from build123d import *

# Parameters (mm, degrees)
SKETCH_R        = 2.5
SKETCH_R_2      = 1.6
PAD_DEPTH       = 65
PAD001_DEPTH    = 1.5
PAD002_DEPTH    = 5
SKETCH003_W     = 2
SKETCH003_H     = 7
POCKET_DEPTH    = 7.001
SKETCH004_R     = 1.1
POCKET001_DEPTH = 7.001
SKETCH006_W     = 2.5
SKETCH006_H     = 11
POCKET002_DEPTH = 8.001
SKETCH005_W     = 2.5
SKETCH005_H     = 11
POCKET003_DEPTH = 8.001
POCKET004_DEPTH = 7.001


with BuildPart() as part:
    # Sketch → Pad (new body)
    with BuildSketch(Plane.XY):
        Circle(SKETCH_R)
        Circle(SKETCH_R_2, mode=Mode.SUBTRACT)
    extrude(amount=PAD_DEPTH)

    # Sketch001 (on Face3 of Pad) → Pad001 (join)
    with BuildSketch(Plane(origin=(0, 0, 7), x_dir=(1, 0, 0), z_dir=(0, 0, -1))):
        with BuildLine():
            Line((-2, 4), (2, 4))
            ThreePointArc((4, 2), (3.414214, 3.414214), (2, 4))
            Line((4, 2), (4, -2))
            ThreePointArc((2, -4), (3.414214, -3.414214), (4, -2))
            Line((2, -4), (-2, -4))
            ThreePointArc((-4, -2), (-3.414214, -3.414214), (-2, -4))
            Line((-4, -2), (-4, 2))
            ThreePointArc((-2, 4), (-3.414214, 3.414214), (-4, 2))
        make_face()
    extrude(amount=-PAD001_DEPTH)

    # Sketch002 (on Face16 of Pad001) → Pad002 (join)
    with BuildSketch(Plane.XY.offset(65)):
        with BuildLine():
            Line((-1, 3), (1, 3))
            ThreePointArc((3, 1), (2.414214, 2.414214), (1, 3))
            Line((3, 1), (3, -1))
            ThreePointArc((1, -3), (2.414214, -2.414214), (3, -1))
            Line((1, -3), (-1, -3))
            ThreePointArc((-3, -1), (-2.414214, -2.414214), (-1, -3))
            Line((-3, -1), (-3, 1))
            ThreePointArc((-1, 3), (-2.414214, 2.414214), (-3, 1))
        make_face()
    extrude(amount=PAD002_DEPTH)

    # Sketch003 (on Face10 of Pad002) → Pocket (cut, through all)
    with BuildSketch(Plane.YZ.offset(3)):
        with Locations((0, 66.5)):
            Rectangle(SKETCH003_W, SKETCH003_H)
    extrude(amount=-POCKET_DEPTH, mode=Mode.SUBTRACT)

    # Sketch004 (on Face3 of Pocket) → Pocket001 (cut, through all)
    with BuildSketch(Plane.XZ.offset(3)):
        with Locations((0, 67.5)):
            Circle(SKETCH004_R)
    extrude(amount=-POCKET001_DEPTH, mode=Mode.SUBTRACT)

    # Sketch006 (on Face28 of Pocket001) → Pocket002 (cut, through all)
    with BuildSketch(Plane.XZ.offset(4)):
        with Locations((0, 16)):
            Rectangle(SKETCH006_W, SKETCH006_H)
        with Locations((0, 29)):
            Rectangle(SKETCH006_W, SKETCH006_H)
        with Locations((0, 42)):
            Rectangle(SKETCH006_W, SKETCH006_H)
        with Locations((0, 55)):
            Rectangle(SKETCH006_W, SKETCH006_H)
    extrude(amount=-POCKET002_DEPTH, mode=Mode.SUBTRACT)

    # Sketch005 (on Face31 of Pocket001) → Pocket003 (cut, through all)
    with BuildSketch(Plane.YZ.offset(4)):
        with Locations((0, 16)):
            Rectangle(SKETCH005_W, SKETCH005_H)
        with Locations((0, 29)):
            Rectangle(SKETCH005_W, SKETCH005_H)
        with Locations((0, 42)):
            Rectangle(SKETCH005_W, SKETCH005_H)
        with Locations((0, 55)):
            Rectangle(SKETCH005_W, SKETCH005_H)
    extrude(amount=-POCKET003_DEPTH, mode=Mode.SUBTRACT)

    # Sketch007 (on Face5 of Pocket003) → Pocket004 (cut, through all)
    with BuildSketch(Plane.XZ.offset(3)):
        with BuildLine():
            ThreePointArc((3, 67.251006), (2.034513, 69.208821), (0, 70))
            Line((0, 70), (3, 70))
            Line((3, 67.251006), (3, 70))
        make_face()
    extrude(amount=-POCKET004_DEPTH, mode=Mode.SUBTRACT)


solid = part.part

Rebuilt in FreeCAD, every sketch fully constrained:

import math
import FreeCAD as App
import Part
import Sketcher
Q = App.Units.Quantity

doc = App.newDocument("Part")
body = doc.addObject("PartDesign::Body", "Body")

sketch1 = body.newObject("Sketcher::SketchObject", "Sketch")
sketch1.AttachmentSupport = (doc.getObject("XY_Plane"), [""])
sketch1.MapMode = "FlatFace"
sketch1.addGeometry([
    Part.Circle(App.Vector(0, 0, 0), App.Vector(0, 0, 1), 2.5),
    Part.Circle(App.Vector(0, 0, 0), App.Vector(0, 0, 1), 1.6),
], False)
sketch1.addConstraint([
    Sketcher.Constraint("Coincident", 0, 3, -1, 1),
    Sketcher.Constraint("Coincident", 1, 3, -1, 1),
    Sketcher.Constraint("Diameter", 0, Q("5 mm")),
    Sketcher.Constraint("Diameter", 1, Q("3.2 mm")),
])
pad1 = body.newObject("PartDesign::Pad", "Pad")
pad1.Profile = sketch1
pad1.Length = 65

sketch2 = body.newObject("Sketcher::SketchObject", "Sketch001")
sketch2.AttachmentSupport = (doc.getObject("XY_Plane"), [""])
sketch2.MapMode = "FlatFace"
sketch2.AttachmentOffset = App.Placement(App.Vector(0, 0, 7), App.Rotation())
sketch2.addGeometry([
    Part.LineSegment(App.Vector(2, -4, 0), App.Vector(-2, -4, 0)),
    Part.ArcOfCircle(Part.Circle(App.Vector(-2, -2, 0), App.Vector(0, 0, 1), 2), math.radians(180), math.radians(270)),
    Part.LineSegment(App.Vector(-4, -2, 0), App.Vector(-4, 2, 0)),
    Part.ArcOfCircle(Part.Circle(App.Vector(-2, 2, 0), App.Vector(0, 0, 1), 2), math.radians(90), math.radians(180)),
    Part.LineSegment(App.Vector(-2, 4, 0), App.Vector(2, 4, 0)),
    Part.ArcOfCircle(Part.Circle(App.Vector(2, 2, 0), App.Vector(0, 0, 1), 2), math.radians(0), math.radians(90)),
    Part.LineSegment(App.Vector(4, 2, 0), App.Vector(4, -2, 0)),
    Part.ArcOfCircle(Part.Circle(App.Vector(2, -2, 0), App.Vector(0, 0, 1), 2), math.radians(-90), math.radians(0)),
], False)
sketch2.addConstraint([
    Sketcher.Constraint("Tangent", 0, 2, 1, 2),
    Sketcher.Constraint("Tangent", 1, 1, 2, 1),
    Sketcher.Constraint("Tangent", 2, 2, 3, 2),
    Sketcher.Constraint("Tangent", 3, 1, 4, 1),
    Sketcher.Constraint("Tangent", 4, 2, 5, 2),
    Sketcher.Constraint("Tangent", 5, 1, 6, 1),
    Sketcher.Constraint("Tangent", 6, 2, 7, 2),
    Sketcher.Constraint("Tangent", 7, 1, 0, 1),
    Sketcher.Constraint("Horizontal", 0),
    Sketcher.Constraint("Vertical", 2),
    Sketcher.Constraint("Horizontal", 4),
    Sketcher.Constraint("Vertical", 6),
    Sketcher.Constraint("Equal", 1, 3),
    Sketcher.Constraint("Equal", 3, 5),
    Sketcher.Constraint("Equal", 5, 7),
    Sketcher.Constraint("Symmetric", 1, 3, 5, 3, -1, 1),
    Sketcher.Constraint("Equal", 4, 2),
    Sketcher.Constraint("Radius", 1, Q("1.999999 mm")),
    Sketcher.Constraint("DistanceX", 0, 2, 0, 1, Q("4 mm")),
])
pad2 = body.newObject("PartDesign::Pad", "Pad001")
pad2.Profile = sketch2
pad2.Length = 1.5

sketch3 = body.newObject("Sketcher::SketchObject", "Sketch002")
sketch3.AttachmentSupport = (doc.getObject("XY_Plane"), [""])
sketch3.MapMode = "FlatFace"
sketch3.AttachmentOffset = App.Placement(App.Vector(0, 0, 65), App.Rotation())
sketch3.addGeometry([
    Part.LineSegment(App.Vector(1, 3, 0), App.Vector(-1, 3, 0)),
    Part.ArcOfCircle(Part.Circle(App.Vector(-1, 1, 0), App.Vector(0, 0, 1), 2), math.radians(90), math.radians(180)),
    Part.LineSegment(App.Vector(-3, 1, 0), App.Vector(-3, -1, 0)),
    Part.ArcOfCircle(Part.Circle(App.Vector(-1, -1, 0), App.Vector(0, 0, 1), 2), math.radians(180), math.radians(270)),
    Part.LineSegment(App.Vector(-1, -3, 0), App.Vector(1, -3, 0)),
    Part.ArcOfCircle(Part.Circle(App.Vector(1, -1, 0), App.Vector(0, 0, 1), 2), math.radians(-90), math.radians(0)),
    Part.LineSegment(App.Vector(3, -1, 0), App.Vector(3, 1, 0)),
    Part.ArcOfCircle(Part.Circle(App.Vector(1, 1, 0), App.Vector(0, 0, 1), 2), math.radians(0), math.radians(90)),
], False)
sketch3.addConstraint([
    Sketcher.Constraint("Tangent", 0, 2, 1, 1),
    Sketcher.Constraint("Tangent", 1, 2, 2, 1),
    Sketcher.Constraint("Tangent", 2, 2, 3, 1),
    Sketcher.Constraint("Tangent", 3, 2, 4, 1),
    Sketcher.Constraint("Tangent", 4, 2, 5, 1),
    Sketcher.Constraint("Tangent", 5, 2, 6, 1),
    Sketcher.Constraint("Tangent", 6, 2, 7, 1),
    Sketcher.Constraint("Tangent", 7, 2, 0, 1),
    Sketcher.Constraint("Horizontal", 0),
    Sketcher.Constraint("Vertical", 2),
    Sketcher.Constraint("Horizontal", 4),
    Sketcher.Constraint("Vertical", 6),
    Sketcher.Constraint("Equal", 1, 3),
    Sketcher.Constraint("Equal", 3, 5),
    Sketcher.Constraint("Equal", 5, 7),
    Sketcher.Constraint("Symmetric", 1, 3, 5, 3, -1, 1),
    Sketcher.Constraint("Equal", 4, 2),
    Sketcher.Constraint("Radius", 1, Q("1.999999 mm")),
    Sketcher.Constraint("DistanceX", 0, 2, 0, 1, Q("2 mm")),
])
pad3 = body.newObject("PartDesign::Pad", "Pad002")
pad3.Profile = sketch3
pad3.Length = 5

sketch4 = body.newObject("Sketcher::SketchObject", "Sketch003")
sketch4.AttachmentSupport = (doc.getObject("YZ_Plane"), [""])
sketch4.MapMode = "FlatFace"
sketch4.AttachmentOffset = App.Placement(App.Vector(0, 0, 3), App.Rotation())
sketch4.addGeometry([
    Part.LineSegment(App.Vector(-1, 70, 0), App.Vector(-1, 63, 0)),
    Part.LineSegment(App.Vector(-1, 63, 0), App.Vector(1, 63, 0)),
    Part.LineSegment(App.Vector(1, 63, 0), App.Vector(1, 70, 0)),
    Part.LineSegment(App.Vector(1, 70, 0), App.Vector(-1, 70, 0)),
], False)
sketch4.addConstraint([
    Sketcher.Constraint("Coincident", 0, 2, 1, 1),
    Sketcher.Constraint("Coincident", 1, 2, 2, 1),
    Sketcher.Constraint("Coincident", 2, 2, 3, 1),
    Sketcher.Constraint("Coincident", 3, 2, 0, 1),
    Sketcher.Constraint("Vertical", 0),
    Sketcher.Constraint("Horizontal", 1),
    Sketcher.Constraint("Vertical", 2),
    Sketcher.Constraint("Horizontal", 3),
    Sketcher.Constraint("DistanceX", 1, 1, 1, 2, Q("2 mm")),
    Sketcher.Constraint("DistanceY", 0, 2, 0, 1, Q("7 mm")),
    Sketcher.Constraint("DistanceX", 0, 2, -1, 1, Q("1 mm")),
    Sketcher.Constraint("DistanceY", -1, 1, 0, 2, Q("63 mm")),
])
pocket1 = body.newObject("PartDesign::Pocket", "Pocket")
pocket1.Profile = sketch4
pocket1.Type = "ThroughAll"

sketch5 = body.newObject("Sketcher::SketchObject", "Sketch004")
sketch5.AttachmentSupport = (doc.getObject("XZ_Plane"), [""])
sketch5.MapMode = "FlatFace"
sketch5.AttachmentOffset = App.Placement(App.Vector(0, 0, 3), App.Rotation())
sketch5.addGeometry(Part.Circle(App.Vector(0, 67.5, 0), App.Vector(0, 0, 1), 1.1), False)
sketch5.addConstraint([
    Sketcher.Constraint("PointOnObject", 0, 3, -2),
    Sketcher.Constraint("Diameter", 0, Q("2.2 mm")),
    Sketcher.Constraint("DistanceY", -1, 1, 0, 3, Q("67.5 mm")),
])
pocket2 = body.newObject("PartDesign::Pocket", "Pocket001")
pocket2.Profile = sketch5
pocket2.Type = "ThroughAll"

sketch6 = body.newObject("Sketcher::SketchObject", "Sketch005")
sketch6.AttachmentSupport = (doc.getObject("XZ_Plane"), [""])
sketch6.MapMode = "FlatFace"
sketch6.AttachmentOffset = App.Placement(App.Vector(0, 0, 4), App.Rotation())
sketch6.addGeometry([
    Part.LineSegment(App.Vector(-1.2, 21.5, 0), App.Vector(-1.2, 10.5, 0)),
    Part.LineSegment(App.Vector(-1.2, 10.5, 0), App.Vector(1.2, 10.5, 0)),
    Part.LineSegment(App.Vector(1.2, 10.5, 0), App.Vector(1.2, 21.5, 0)),
    Part.LineSegment(App.Vector(1.2, 21.5, 0), App.Vector(-1.2, 21.5, 0)),
    Part.LineSegment(App.Vector(-1.2, 34.5, 0), App.Vector(-1.2, 23.5, 0)),
    Part.LineSegment(App.Vector(-1.2, 23.5, 0), App.Vector(1.2, 23.5, 0)),
    Part.LineSegment(App.Vector(1.2, 23.5, 0), App.Vector(1.2, 34.5, 0)),
    Part.LineSegment(App.Vector(1.2, 34.5, 0), App.Vector(-1.2, 34.5, 0)),
    Part.LineSegment(App.Vector(-1.2, 47.5, 0), App.Vector(-1.2, 36.5, 0)),
    Part.LineSegment(App.Vector(-1.2, 36.5, 0), App.Vector(1.2, 36.5, 0)),
    Part.LineSegment(App.Vector(1.2, 36.5, 0), App.Vector(1.2, 47.5, 0)),
    Part.LineSegment(App.Vector(1.2, 47.5, 0), App.Vector(-1.2, 47.5, 0)),
    Part.LineSegment(App.Vector(-1.2, 60.5, 0), App.Vector(-1.2, 49.5, 0)),
    Part.LineSegment(App.Vector(-1.2, 49.5, 0), App.Vector(1.2, 49.5, 0)),
    Part.LineSegment(App.Vector(1.2, 49.5, 0), App.Vector(1.2, 60.5, 0)),
    Part.LineSegment(App.Vector(1.2, 60.5, 0), App.Vector(-1.2, 60.5, 0)),
], False)
sketch6.addConstraint([
    Sketcher.Constraint("Coincident", 0, 2, 1, 1),
    Sketcher.Constraint("Coincident", 1, 2, 2, 1),
    Sketcher.Constraint("Coincident", 2, 2, 3, 1),
    Sketcher.Constraint("Coincident", 3, 2, 0, 1),
    Sketcher.Constraint("Coincident", 4, 2, 5, 1),
    Sketcher.Constraint("Coincident", 5, 2, 6, 1),
    Sketcher.Constraint("Coincident", 6, 2, 7, 1),
    Sketcher.Constraint("Coincident", 7, 2, 4, 1),
    Sketcher.Constraint("Coincident", 8, 2, 9, 1),
    Sketcher.Constraint("Coincident", 9, 2, 10, 1),
    Sketcher.Constraint("Coincident", 10, 2, 11, 1),
    Sketcher.Constraint("Coincident", 11, 2, 8, 1),
    Sketcher.Constraint("Coincident", 12, 2, 13, 1),
    Sketcher.Constraint("Coincident", 13, 2, 14, 1),
    Sketcher.Constraint("Coincident", 14, 2, 15, 1),
    Sketcher.Constraint("Coincident", 15, 2, 12, 1),
    Sketcher.Constraint("Vertical", 0),
    Sketcher.Constraint("Horizontal", 1),
    Sketcher.Constraint("Vertical", 2),
    Sketcher.Constraint("Horizontal", 3),
    Sketcher.Constraint("Vertical", 4),
    Sketcher.Constraint("Horizontal", 5),
    Sketcher.Constraint("Vertical", 6),
    Sketcher.Constraint("Horizontal", 7),
    Sketcher.Constraint("Vertical", 8),
    Sketcher.Constraint("Horizontal", 9),
    Sketcher.Constraint("Vertical", 10),
    Sketcher.Constraint("Horizontal", 11),
    Sketcher.Constraint("Vertical", 12),
    Sketcher.Constraint("Horizontal", 13),
    Sketcher.Constraint("Vertical", 14),
    Sketcher.Constraint("Horizontal", 15),
    Sketcher.Constraint("Vertical", 3, 2, 4, 2),
    Sketcher.Constraint("Vertical", 2, 2, 5, 2),
    Sketcher.Constraint("Vertical", 7, 2, 8, 2),
    Sketcher.Constraint("Vertical", 6, 2, 9, 2),
    Sketcher.Constraint("Vertical", 11, 2, 12, 2),
    Sketcher.Constraint("Vertical", 10, 2, 13, 2),
    Sketcher.Constraint("Equal", 2, 4),
    Sketcher.Constraint("Equal", 6, 8),
    Sketcher.Constraint("Equal", 10, 12),
    Sketcher.Constraint("DistanceY", 0, 2, 0, 1, Q("11 mm")),
    Sketcher.Constraint("DistanceX", 1, 1, 1, 2, Q("2.5 mm")),
    Sketcher.Constraint("DistanceY", 3, 2, 4, 2, Q("2 mm")),
    Sketcher.Constraint("DistanceY", 7, 2, 8, 2, Q("2 mm")),
    Sketcher.Constraint("DistanceY", 11, 2, 12, 2, Q("2 mm")),
    Sketcher.Constraint("DistanceY", -1, 1, 0, 2, Q("10.5 mm")),
    Sketcher.Constraint("DistanceX", 0, 2, -1, 1, Q("1.25 mm")),
])
pocket3 = body.newObject("PartDesign::Pocket", "Pocket002")
pocket3.Profile = sketch6
pocket3.Type = "ThroughAll"

sketch7 = body.newObject("Sketcher::SketchObject", "Sketch006")
sketch7.AttachmentSupport = (doc.getObject("YZ_Plane"), [""])
sketch7.MapMode = "FlatFace"
sketch7.AttachmentOffset = App.Placement(App.Vector(0, 0, 4), App.Rotation())
sketch7.addGeometry([
    Part.LineSegment(App.Vector(-1.2, 21.5, 0), App.Vector(-1.2, 10.5, 0)),
    Part.LineSegment(App.Vector(-1.2, 10.5, 0), App.Vector(1.2, 10.5, 0)),
    Part.LineSegment(App.Vector(1.2, 10.5, 0), App.Vector(1.2, 21.5, 0)),
    Part.LineSegment(App.Vector(1.2, 21.5, 0), App.Vector(-1.2, 21.5, 0)),
    Part.LineSegment(App.Vector(-1.2, 34.5, 0), App.Vector(-1.2, 23.5, 0)),
    Part.LineSegment(App.Vector(-1.2, 23.5, 0), App.Vector(1.2, 23.5, 0)),
    Part.LineSegment(App.Vector(1.2, 23.5, 0), App.Vector(1.2, 34.5, 0)),
    Part.LineSegment(App.Vector(1.2, 34.5, 0), App.Vector(-1.2, 34.5, 0)),
    Part.LineSegment(App.Vector(-1.2, 47.5, 0), App.Vector(-1.2, 36.5, 0)),
    Part.LineSegment(App.Vector(-1.2, 36.5, 0), App.Vector(1.2, 36.5, 0)),
    Part.LineSegment(App.Vector(1.2, 36.5, 0), App.Vector(1.2, 47.5, 0)),
    Part.LineSegment(App.Vector(1.2, 47.5, 0), App.Vector(-1.2, 47.5, 0)),
    Part.LineSegment(App.Vector(-1.2, 60.5, 0), App.Vector(-1.2, 49.5, 0)),
    Part.LineSegment(App.Vector(-1.2, 49.5, 0), App.Vector(1.2, 49.5, 0)),
    Part.LineSegment(App.Vector(1.2, 49.5, 0), App.Vector(1.2, 60.5, 0)),
    Part.LineSegment(App.Vector(1.2, 60.5, 0), App.Vector(-1.2, 60.5, 0)),
], False)
sketch7.addConstraint([
    Sketcher.Constraint("Coincident", 0, 2, 1, 1),
    Sketcher.Constraint("Coincident", 1, 2, 2, 1),
    Sketcher.Constraint("Coincident", 2, 2, 3, 1),
    Sketcher.Constraint("Coincident", 3, 2, 0, 1),
    Sketcher.Constraint("Coincident", 4, 2, 5, 1),
    Sketcher.Constraint("Coincident", 5, 2, 6, 1),
    Sketcher.Constraint("Coincident", 6, 2, 7, 1),
    Sketcher.Constraint("Coincident", 7, 2, 4, 1),
    Sketcher.Constraint("Coincident", 8, 2, 9, 1),
    Sketcher.Constraint("Coincident", 9, 2, 10, 1),
    Sketcher.Constraint("Coincident", 10, 2, 11, 1),
    Sketcher.Constraint("Coincident", 11, 2, 8, 1),
    Sketcher.Constraint("Coincident", 12, 2, 13, 1),
    Sketcher.Constraint("Coincident", 13, 2, 14, 1),
    Sketcher.Constraint("Coincident", 14, 2, 15, 1),
    Sketcher.Constraint("Coincident", 15, 2, 12, 1),
    Sketcher.Constraint("Vertical", 0),
    Sketcher.Constraint("Horizontal", 1),
    Sketcher.Constraint("Vertical", 2),
    Sketcher.Constraint("Horizontal", 3),
    Sketcher.Constraint("Vertical", 4),
    Sketcher.Constraint("Horizontal", 5),
    Sketcher.Constraint("Vertical", 6),
    Sketcher.Constraint("Horizontal", 7),
    Sketcher.Constraint("Vertical", 8),
    Sketcher.Constraint("Horizontal", 9),
    Sketcher.Constraint("Vertical", 10),
    Sketcher.Constraint("Horizontal", 11),
    Sketcher.Constraint("Vertical", 12),
    Sketcher.Constraint("Horizontal", 13),
    Sketcher.Constraint("Vertical", 14),
    Sketcher.Constraint("Horizontal", 15),
    Sketcher.Constraint("Vertical", 3, 2, 4, 2),
    Sketcher.Constraint("Vertical", 2, 2, 5, 2),
    Sketcher.Constraint("Vertical", 7, 2, 8, 2),
    Sketcher.Constraint("Vertical", 6, 2, 9, 2),
    Sketcher.Constraint("Vertical", 11, 2, 12, 2),
    Sketcher.Constraint("Vertical", 10, 2, 13, 2),
    Sketcher.Constraint("Equal", 2, 4),
    Sketcher.Constraint("Equal", 6, 8),
    Sketcher.Constraint("Equal", 10, 12),
    Sketcher.Constraint("DistanceY", 0, 2, 0, 1, Q("11 mm")),
    Sketcher.Constraint("DistanceX", 1, 1, 1, 2, Q("2.5 mm")),
    Sketcher.Constraint("DistanceY", 3, 2, 4, 2, Q("2 mm")),
    Sketcher.Constraint("DistanceY", 7, 2, 8, 2, Q("2 mm")),
    Sketcher.Constraint("DistanceY", 11, 2, 12, 2, Q("2 mm")),
    Sketcher.Constraint("DistanceY", -1, 1, 0, 2, Q("10.5 mm")),
    Sketcher.Constraint("DistanceX", 0, 2, -1, 1, Q("1.25 mm")),
])
pocket4 = body.newObject("PartDesign::Pocket", "Pocket003")
pocket4.Profile = sketch7
pocket4.Type = "ThroughAll"

sketch8 = body.newObject("Sketcher::SketchObject", "Sketch007")
sketch8.AttachmentSupport = (doc.getObject("XZ_Plane"), [""])
sketch8.MapMode = "FlatFace"
sketch8.AttachmentOffset = App.Placement(App.Vector(0, 0, 3), App.Rotation())
sketch8.addGeometry([
    Part.ArcOfCircle(Part.Circle(App.Vector(0, 67, 0), App.Vector(0, 0, 1), 3), math.radians(5), math.radians(90)),
    Part.LineSegment(App.Vector(3, 67.3, 0), App.Vector(3, 70, 0)),
    Part.LineSegment(App.Vector(3, 70, 0), App.Vector(0, 70, 0)),
], False)
sketch8.addConstraint([
    Sketcher.Constraint("Coincident", 0, 1, 1, 1),
    Sketcher.Constraint("Coincident", 1, 2, 2, 1),
    Sketcher.Constraint("Tangent", 2, 2, 0, 2),
    Sketcher.Constraint("Vertical", 1),
    Sketcher.Constraint("Horizontal", 2),
    Sketcher.Constraint("PointOnObject", 0, 3, -2),
    Sketcher.Constraint("DistanceX", 2, 2, 2, 1, Q("3 mm")),
    Sketcher.Constraint("DistanceY", -1, 1, 1, 2, Q("70 mm")),
    Sketcher.Constraint("Radius", 0, Q("3.011459 mm")),
])
pocket5 = body.newObject("PartDesign::Pocket", "Pocket004")
pocket5.Profile = sketch8
pocket5.Type = "ThroughAll"

doc.recompute()
